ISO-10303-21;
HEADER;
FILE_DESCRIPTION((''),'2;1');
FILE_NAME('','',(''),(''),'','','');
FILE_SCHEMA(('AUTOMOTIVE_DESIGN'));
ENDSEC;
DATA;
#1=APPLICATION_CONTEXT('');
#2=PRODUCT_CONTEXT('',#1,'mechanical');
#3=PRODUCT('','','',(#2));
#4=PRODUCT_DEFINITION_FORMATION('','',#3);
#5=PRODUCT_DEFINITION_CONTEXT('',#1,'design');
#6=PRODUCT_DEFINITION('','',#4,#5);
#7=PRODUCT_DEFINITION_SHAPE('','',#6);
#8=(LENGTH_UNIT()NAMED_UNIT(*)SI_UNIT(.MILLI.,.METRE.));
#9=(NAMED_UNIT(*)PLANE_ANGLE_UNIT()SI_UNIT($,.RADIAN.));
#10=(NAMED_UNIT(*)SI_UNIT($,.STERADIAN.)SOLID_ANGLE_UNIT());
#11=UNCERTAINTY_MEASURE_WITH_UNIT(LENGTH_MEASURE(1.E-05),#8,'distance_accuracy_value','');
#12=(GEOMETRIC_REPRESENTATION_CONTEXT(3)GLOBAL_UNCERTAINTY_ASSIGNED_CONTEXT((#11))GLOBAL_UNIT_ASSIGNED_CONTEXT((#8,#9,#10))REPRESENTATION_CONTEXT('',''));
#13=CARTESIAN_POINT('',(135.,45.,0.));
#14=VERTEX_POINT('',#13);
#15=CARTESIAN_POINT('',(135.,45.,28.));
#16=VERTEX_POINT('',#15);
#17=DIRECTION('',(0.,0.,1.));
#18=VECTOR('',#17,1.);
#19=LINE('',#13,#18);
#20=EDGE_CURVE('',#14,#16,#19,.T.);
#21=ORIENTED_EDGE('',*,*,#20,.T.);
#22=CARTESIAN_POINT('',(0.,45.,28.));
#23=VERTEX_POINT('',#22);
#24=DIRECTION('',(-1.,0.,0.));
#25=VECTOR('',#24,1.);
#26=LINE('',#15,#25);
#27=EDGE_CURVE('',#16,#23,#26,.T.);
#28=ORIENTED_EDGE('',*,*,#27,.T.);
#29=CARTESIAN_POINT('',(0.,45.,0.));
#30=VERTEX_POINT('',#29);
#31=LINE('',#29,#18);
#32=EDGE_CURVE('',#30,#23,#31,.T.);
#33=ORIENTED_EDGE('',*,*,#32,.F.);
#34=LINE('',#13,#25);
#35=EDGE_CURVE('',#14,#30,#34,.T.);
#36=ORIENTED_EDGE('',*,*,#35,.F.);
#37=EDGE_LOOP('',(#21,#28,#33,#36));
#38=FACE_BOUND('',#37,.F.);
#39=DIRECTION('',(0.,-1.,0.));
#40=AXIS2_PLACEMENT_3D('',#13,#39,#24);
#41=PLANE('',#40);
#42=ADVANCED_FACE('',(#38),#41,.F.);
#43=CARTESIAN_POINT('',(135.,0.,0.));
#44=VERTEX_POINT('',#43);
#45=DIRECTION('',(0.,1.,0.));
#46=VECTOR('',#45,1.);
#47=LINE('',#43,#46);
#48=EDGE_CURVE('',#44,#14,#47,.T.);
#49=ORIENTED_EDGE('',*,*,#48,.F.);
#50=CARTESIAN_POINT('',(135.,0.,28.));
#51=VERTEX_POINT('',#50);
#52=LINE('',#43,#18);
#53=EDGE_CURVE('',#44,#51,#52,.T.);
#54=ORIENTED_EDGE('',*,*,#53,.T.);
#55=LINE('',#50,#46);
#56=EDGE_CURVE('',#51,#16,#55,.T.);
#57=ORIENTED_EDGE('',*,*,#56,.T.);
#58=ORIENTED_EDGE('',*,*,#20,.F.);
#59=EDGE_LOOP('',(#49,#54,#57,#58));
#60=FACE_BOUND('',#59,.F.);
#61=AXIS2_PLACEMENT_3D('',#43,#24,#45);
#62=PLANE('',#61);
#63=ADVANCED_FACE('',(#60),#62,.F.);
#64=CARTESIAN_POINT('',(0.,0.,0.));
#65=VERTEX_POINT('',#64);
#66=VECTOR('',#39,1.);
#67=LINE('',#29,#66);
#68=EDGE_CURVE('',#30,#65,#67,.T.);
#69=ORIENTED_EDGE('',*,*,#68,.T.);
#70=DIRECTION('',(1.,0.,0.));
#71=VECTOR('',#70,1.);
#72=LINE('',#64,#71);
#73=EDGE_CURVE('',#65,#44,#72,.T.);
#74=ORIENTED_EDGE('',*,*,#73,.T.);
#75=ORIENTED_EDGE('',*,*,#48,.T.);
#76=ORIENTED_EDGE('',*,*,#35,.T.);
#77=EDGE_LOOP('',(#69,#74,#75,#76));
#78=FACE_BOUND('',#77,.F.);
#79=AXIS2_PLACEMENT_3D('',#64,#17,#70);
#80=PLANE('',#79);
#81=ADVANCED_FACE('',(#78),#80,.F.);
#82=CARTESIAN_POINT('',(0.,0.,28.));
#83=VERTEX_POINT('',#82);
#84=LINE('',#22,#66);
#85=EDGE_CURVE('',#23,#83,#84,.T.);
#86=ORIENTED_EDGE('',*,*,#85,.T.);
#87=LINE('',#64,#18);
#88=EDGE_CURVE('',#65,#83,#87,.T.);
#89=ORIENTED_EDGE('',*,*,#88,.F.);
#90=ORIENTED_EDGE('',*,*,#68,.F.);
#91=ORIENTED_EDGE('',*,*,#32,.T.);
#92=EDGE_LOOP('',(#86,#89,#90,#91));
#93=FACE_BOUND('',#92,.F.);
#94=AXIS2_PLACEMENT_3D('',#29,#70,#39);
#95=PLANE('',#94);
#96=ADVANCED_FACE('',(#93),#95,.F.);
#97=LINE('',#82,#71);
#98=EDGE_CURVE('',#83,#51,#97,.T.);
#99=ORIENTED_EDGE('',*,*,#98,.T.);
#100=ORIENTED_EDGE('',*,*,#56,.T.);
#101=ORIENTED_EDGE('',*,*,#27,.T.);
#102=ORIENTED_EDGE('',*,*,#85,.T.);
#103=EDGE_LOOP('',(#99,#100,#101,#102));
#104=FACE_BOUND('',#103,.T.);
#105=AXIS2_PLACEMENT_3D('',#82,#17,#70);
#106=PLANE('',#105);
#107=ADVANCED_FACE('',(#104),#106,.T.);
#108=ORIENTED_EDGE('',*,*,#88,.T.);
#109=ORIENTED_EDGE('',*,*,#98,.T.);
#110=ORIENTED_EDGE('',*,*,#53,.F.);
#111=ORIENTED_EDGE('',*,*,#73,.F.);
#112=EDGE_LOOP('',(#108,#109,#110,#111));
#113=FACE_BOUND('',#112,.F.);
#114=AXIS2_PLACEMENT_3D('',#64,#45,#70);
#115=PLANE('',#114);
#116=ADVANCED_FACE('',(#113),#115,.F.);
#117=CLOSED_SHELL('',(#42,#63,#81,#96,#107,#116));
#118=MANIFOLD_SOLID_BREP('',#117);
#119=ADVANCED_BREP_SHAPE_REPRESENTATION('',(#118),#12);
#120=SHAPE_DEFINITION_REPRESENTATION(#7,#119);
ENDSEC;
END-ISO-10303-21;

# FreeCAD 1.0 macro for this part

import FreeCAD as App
import Part
import Sketcher
from FreeCAD import Vector
Q = App.Units.Quantity

doc = App.newDocument("Part")
body = doc.addObject("PartDesign::Body", "Body")

# Sketch on XY plane
sketch1 = doc.addObject("Sketcher::SketchObject", "Sketch")
body.addObject(sketch1)
sketch1.AttachmentSupport = (doc.XY_Plane, [""])
sketch1.MapMode = "FlatFace"
sketch1.addGeometry(Part.LineSegment(Vector(0, 45, 0), Vector(0, 0, 0)), False)
sketch1.addGeometry(Part.LineSegment(Vector(0, 0, 0), Vector(135, 0, 0)), False)
sketch1.addGeometry(Part.LineSegment(Vector(135, 0, 0), Vector(135, 45, 0)), False)
sketch1.addGeometry(Part.LineSegment(Vector(135, 45, 0), Vector(0, 45, 0)), False)
sketch1.addConstraint(Sketcher.Constraint("Coincident", 0, 2, 1, 1))
sketch1.addConstraint(Sketcher.Constraint("Coincident", 1, 2, 2, 1))
sketch1.addConstraint(Sketcher.Constraint("Coincident", 2, 2, 3, 1))
sketch1.addConstraint(Sketcher.Constraint("Coincident", 3, 2, 0, 1))
sketch1.addConstraint(Sketcher.Constraint("Vertical", 0))
sketch1.addConstraint(Sketcher.Constraint("Horizontal", 1))
sketch1.addConstraint(Sketcher.Constraint("Vertical", 2))
sketch1.addConstraint(Sketcher.Constraint("Horizontal", 3))
sketch1.addConstraint(Sketcher.Constraint("Coincident", 0, 2, -1, 1))
sketch1.addConstraint(Sketcher.Constraint("DistanceX", 1, 1, 1, 2, Q("135 mm")))
sketch1.addConstraint(Sketcher.Constraint("DistanceY", 0, 2, 0, 1, Q("45 mm")))
pad1 = doc.addObject("PartDesign::Pad", "Pad")
body.addObject(pad1)
pad1.Profile = sketch1
pad1.Length = 28

doc.recompute()
